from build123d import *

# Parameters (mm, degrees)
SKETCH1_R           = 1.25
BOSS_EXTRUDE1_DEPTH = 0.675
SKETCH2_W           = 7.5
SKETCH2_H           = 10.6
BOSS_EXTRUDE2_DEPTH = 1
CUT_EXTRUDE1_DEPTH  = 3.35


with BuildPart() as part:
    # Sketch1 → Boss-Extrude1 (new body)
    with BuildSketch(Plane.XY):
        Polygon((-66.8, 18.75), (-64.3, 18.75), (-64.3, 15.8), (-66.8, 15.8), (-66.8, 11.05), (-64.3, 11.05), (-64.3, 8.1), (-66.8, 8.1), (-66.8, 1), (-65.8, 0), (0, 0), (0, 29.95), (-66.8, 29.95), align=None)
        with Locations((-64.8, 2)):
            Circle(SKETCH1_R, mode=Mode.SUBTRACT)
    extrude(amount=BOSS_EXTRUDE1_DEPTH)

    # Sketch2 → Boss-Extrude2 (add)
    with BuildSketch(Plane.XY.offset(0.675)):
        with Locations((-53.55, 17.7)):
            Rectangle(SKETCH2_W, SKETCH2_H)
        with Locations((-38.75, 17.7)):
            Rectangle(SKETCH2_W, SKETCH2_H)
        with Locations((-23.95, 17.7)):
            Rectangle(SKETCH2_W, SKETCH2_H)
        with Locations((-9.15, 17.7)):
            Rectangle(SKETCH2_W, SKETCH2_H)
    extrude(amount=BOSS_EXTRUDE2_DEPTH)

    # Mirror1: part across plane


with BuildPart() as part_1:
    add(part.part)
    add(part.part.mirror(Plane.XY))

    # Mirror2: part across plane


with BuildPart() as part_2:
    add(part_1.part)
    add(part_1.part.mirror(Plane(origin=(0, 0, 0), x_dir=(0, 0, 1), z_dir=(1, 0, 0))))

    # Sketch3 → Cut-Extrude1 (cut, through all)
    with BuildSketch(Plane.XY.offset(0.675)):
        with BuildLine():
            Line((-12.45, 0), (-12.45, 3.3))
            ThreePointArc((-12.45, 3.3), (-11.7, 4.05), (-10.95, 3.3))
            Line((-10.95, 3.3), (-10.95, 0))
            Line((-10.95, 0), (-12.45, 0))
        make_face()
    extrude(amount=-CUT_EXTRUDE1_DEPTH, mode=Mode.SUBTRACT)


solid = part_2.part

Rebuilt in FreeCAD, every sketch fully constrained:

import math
import FreeCAD as App
import Part
import Sketcher
from FreeCAD import Vector
Q = App.Units.Quantity


def add_polygon(sketch, points):
    """Adds a closed chain of lines whose ends are joined by coincident constraints."""
    first, n = sketch.GeometryCount, len(points)
    for a, b in zip(points, points[1:] + points[:1]):
        sketch.addGeometry(Part.LineSegment(App.Vector(*a, 0), App.Vector(*b, 0)), False)
    for i in range(n):
        sketch.addConstraint(Sketcher.Constraint("Coincident", first + i, 2, first + (i + 1) % n, 1))

doc = App.newDocument("Part")
params = doc.addObject("Spreadsheet::Sheet", "Params")
for row, (alias, value) in enumerate([
    ("sketch1_diameter", "2.5 mm"),
    ("sketch1_width", "2.5 mm"),
    ("sketch1_width2", "65.8 mm"),
    ("sketch1_width3", "66.8 mm"),
    ("sketch1_height", "7.1 mm"),
    ("pad1_length", "0.675 mm"),
    ("sketch2_width", "7.5 mm"),
    ("sketch2_height", "10.6 mm"),
    ("pad2_length", "1 mm"),
    ("sketch3_radius", "0.75 mm"),
    ("sketch3_height", "3.3 mm"),
], start=1):
    params.set(f"A{row}", alias)
    params.set(f"B{row}", "=" + value)
    params.setAlias(f"B{row}", alias)

body = doc.addObject("PartDesign::Body", "Body")

# Sketch on XY plane
sketch1 = body.newObject("Sketcher::SketchObject", "Sketch")
sketch1.AttachmentSupport = (doc.getObject("XY_Plane"), [""])
sketch1.MapMode = "FlatFace"
add_polygon(sketch1, [(-66.8, 18.75), (-64.3, 18.75), (-64.3, 15.8), (-66.8, 15.8), (-66.8, 11.05), (-64.3, 11.05), (-64.3, 8.1), (-66.8, 8.1), (-66.8, 1), (-65.8, 0), (0, 0), (0, 29.95), (-66.8, 29.95)])  # lines 0-12
sketch1.addGeometry(Part.Circle(Vector(-64.8, 2, 0), Vector(0, 0, 1), 1.25), False)  # 13
sketch1.addConstraint(Sketcher.Constraint("Horizontal", 0))
sketch1.addConstraint(Sketcher.Constraint("Vertical", 1))
sketch1.addConstraint(Sketcher.Constraint("Horizontal", 2))
sketch1.addConstraint(Sketcher.Constraint("Vertical", 3))
sketch1.addConstraint(Sketcher.Constraint("Horizontal", 4))
sketch1.addConstraint(Sketcher.Constraint("Vertical", 5))
sketch1.addConstraint(Sketcher.Constraint("Horizontal", 6))
sketch1.addConstraint(Sketcher.Constraint("Vertical", 7))
sketch1.addConstraint(Sketcher.Constraint("Horizontal", 9))
sketch1.addConstraint(Sketcher.Constraint("Vertical", 10))
sketch1.addConstraint(Sketcher.Constraint("Horizontal", 11))
sketch1.addConstraint(Sketcher.Constraint("Vertical", 12))
sketch1.addConstraint(Sketcher.Constraint("Coincident", 9, 2, -1, 1))
sketch1.addConstraint(Sketcher.Constraint("Vertical", 1, 2, 4, 2))
sketch1.addConstraint(Sketcher.Constraint("Vertical", 3, 2, 6, 2))
sketch1.addConstraint(Sketcher.Constraint("Vertical", 7, 2, 11, 2))
sketch1.addConstraint(Sketcher.Constraint("Equal", 1, 5))
sketch1.addConstraint(Sketcher.Constraint("Diameter", 13, Q("2.5 mm")))
sketch1.addConstraint(Sketcher.Constraint("Angle", 8, Q("-45 deg")))
sketch1.addConstraint(Sketcher.Constraint("DistanceX", 0, 1, 0, 2, Q("2.5 mm")))
sketch1.addConstraint(Sketcher.Constraint("DistanceX", 9, 1, 9, 2, Q("65.8 mm")))
sketch1.addConstraint(Sketcher.Constraint("DistanceX", 11, 2, 11, 1, Q("66.8 mm")))
sketch1.addConstraint(Sketcher.Constraint("DistanceY", 7, 2, 7, 1, Q("7.1 mm")))
sketch1.addConstraint(Sketcher.Constraint("DistanceY", 12, 2, 12, 1, Q("11.2 mm")))
sketch1.addConstraint(Sketcher.Constraint("DistanceY", -1, 1, 13, 3, Q("2 mm")))
sketch1.addConstraint(Sketcher.Constraint("DistanceX", 2, 2, 13, 3, Q("2 mm")))
sketch1.addConstraint(Sketcher.Constraint("DistanceY", 1, 2, 1, 1, Q("2.95 mm")))
sketch1.addConstraint(Sketcher.Constraint("DistanceY", 3, 2, 3, 1, Q("4.75 mm")))
sketch1.setExpression("Constraints[30]", "Params.sketch1_diameter")
sketch1.setExpression("Constraints[32]", "Params.sketch1_width")
sketch1.setExpression("Constraints[33]", "Params.sketch1_width2")
sketch1.setExpression("Constraints[34]", "Params.sketch1_width3")
sketch1.setExpression("Constraints[35]", "Params.sketch1_height")
pad1 = body.newObject("PartDesign::Pad", "Pad")
pad1.Profile = sketch1
pad1.setExpression("Length", "Params.pad1_length")

# Sketch on XY plane
sketch2 = body.newObject("Sketcher::SketchObject", "Sketch001")
sketch2.AttachmentSupport = (doc.getObject("XY_Plane"), [""])
sketch2.MapMode = "FlatFace"
sketch2.AttachmentOffset = App.Placement(Vector(0, 0, 0.675), App.Rotation())
add_polygon(sketch2, [(-57.3, 23), (-57.3, 12.4), (-49.8, 12.4), (-49.8, 23)])  # lines 0-3
add_polygon(sketch2, [(-42.5, 23), (-42.5, 12.4), (-35, 12.4), (-35, 23)])  # lines 4-7
add_polygon(sketch2, [(-27.7, 23), (-27.7, 12.4), (-20.2, 12.4), (-20.2, 23)])  # lines 8-11
add_polygon(sketch2, [(-12.9, 23), (-12.9, 12.4), (-5.4, 12.4), (-5.4, 23)])  # lines 12-15
sketch2.addConstraint(Sketcher.Constraint("Vertical", 0))
sketch2.addConstraint(Sketcher.Constraint("Horizontal", 1))
sketch2.addConstraint(Sketcher.Constraint("Vertical", 2))
sketch2.addConstraint(Sketcher.Constraint("Horizontal", 3))
sketch2.addConstraint(Sketcher.Constraint("Vertical", 4))
sketch2.addConstraint(Sketcher.Constraint("Horizontal", 5))
sketch2.addConstraint(Sketcher.Constraint("Vertical", 6))
sketch2.addConstraint(Sketcher.Constraint("Horizontal", 7))
sketch2.addConstraint(Sketcher.Constraint("Vertical", 8))
sketch2.addConstraint(Sketcher.Constraint("Horizontal", 9))
sketch2.addConstraint(Sketcher.Constraint("Vertical", 10))
sketch2.addConstraint(Sketcher.Constraint("Horizontal", 11))
sketch2.addConstraint(Sketcher.Constraint("Vertical", 12))
sketch2.addConstraint(Sketcher.Constraint("Horizontal", 13))
sketch2.addConstraint(Sketcher.Constraint("Vertical", 14))
sketch2.addConstraint(Sketcher.Constraint("Horizontal", 15))
sketch2.addConstraint(Sketcher.Constraint("Horizontal", 1, 2, 4, 2))
sketch2.addConstraint(Sketcher.Constraint("Horizontal", 3, 2, 6, 2))
sketch2.addConstraint(Sketcher.Constraint("Horizontal", 5, 2, 8, 2))
sketch2.addConstraint(Sketcher.Constraint("Horizontal", 7, 2, 10, 2))
sketch2.addConstraint(Sketcher.Constraint("Horizontal", 9, 2, 12, 2))
sketch2.addConstraint(Sketcher.Constraint("Horizontal", 11, 2, 14, 2))
sketch2.addConstraint(Sketcher.Constraint("Equal", 3, 5))
sketch2.addConstraint(Sketcher.Constraint("Equal", 7, 9))
sketch2.addConstraint(Sketcher.Constraint("Equal", 11, 13))
sketch2.addConstraint(Sketcher.Constraint("DistanceX", 1, 1, 1, 2, Q("7.5 mm")))
sketch2.addConstraint(Sketcher.Constraint("DistanceY", 0, 2, 0, 1, Q("10.6 mm")))
sketch2.addConstraint(Sketcher.Constraint("DistanceY", -1, 1, 2, 2, Q("23 mm")))
sketch2.addConstraint(Sketcher.Constraint("DistanceX", 5, 2, -1, 1, Q("35 mm")))
sketch2.addConstraint(Sketcher.Constraint("DistanceX", 0, 2, -1, 1, Q("57.3 mm")))
sketch2.addConstraint(Sketcher.Constraint("DistanceX", 8, 2, -1, 1, Q("27.7 mm")))
sketch2.addConstraint(Sketcher.Constraint("DistanceX", 12, 2, -1, 1, Q("12.9 mm")))
sketch2.setExpression("Constraints[41]", "Params.sketch2_width")
sketch2.setExpression("Constraints[42]", "Params.sketch2_height")
pad2 = body.newObject("PartDesign::Pad", "Pad001")
pad2.Profile = sketch2
pad2.setExpression("Length", "Params.pad2_length")
body2 = doc.addObject("PartDesign::Body", "Body001")
doc.recompute()

body2.BaseFeature = body
doc.recompute()

mirroring = doc.addObject("Part::Mirroring", "Mirroring")
mirroring.Source = body
mirroring.Base = Vector(0, 0, 0)
mirroring.Normal = Vector(0, 0, 1)
body3 = doc.addObject("PartDesign::Body", "Body002")
body3.BaseFeature = mirroring
boolean = body2.newObject("PartDesign::Boolean", "Boolean")
boolean.Type = "Fuse"
boolean.addObjects([body3])
doc.recompute()
body4 = doc.addObject("PartDesign::Body", "Body003")
doc.recompute()

body4.BaseFeature = body2
doc.recompute()

mirroring2 = doc.addObject("Part::Mirroring", "Mirroring001")
mirroring2.Source = body2
mirroring2.Base = Vector(0, 0, 0)
mirroring2.Normal = Vector(1, 0, 0)
body5 = doc.addObject("PartDesign::Body", "Body004")
body5.BaseFeature = mirroring2
boolean2 = body4.newObject("PartDesign::Boolean", "Boolean001")
boolean2.Type = "Fuse"
boolean2.addObjects([body5])
doc.recompute()

# Sketch on XY plane
sketch3 = body4.newObject("Sketcher::SketchObject", "Sketch002")
sketch3.AttachmentSupport = (doc.getObject("XY_Plane003"), [""])
sketch3.MapMode = "FlatFace"
sketch3.AttachmentOffset = App.Placement(Vector(0, 0, 0.675), App.Rotation())
sketch3.addGeometry(Part.LineSegment(Vector(-12.45, 3.3, 0), Vector(-12.45, 0, 0)), False)
sketch3.addGeometry(Part.LineSegment(Vector(-12.45, 0, 0), Vector(-10.95, 0, 0)), False)
sketch3.addGeometry(Part.LineSegment(Vector(-10.95, 0, 0), Vector(-10.95, 3.3, 0)), False)
sketch3.addGeometry(Part.ArcOfCircle(Part.Circle(Vector(-11.7, 3.3, 0), Vector(0, 0, 1), 0.75), math.radians(0), math.radians(180)), False)
sketch3.addConstraint(Sketcher.Constraint("Coincident", 0, 2, 1, 1))
sketch3.addConstraint(Sketcher.Constraint("Coincident", 1, 2, 2, 1))
sketch3.addConstraint(Sketcher.Constraint("Tangent", 2, 2, 3, 1))
sketch3.addConstraint(Sketcher.Constraint("Tangent", 3, 2, 0, 1))
sketch3.addConstraint(Sketcher.Constraint("Vertical", 0))
sketch3.addConstraint(Sketcher.Constraint("Horizontal", 1))
sketch3.addConstraint(Sketcher.Constraint("Vertical", 2))
sketch3.addConstraint(Sketcher.Constraint("PointOnObject", 0, 2, -1))
sketch3.addConstraint(Sketcher.Constraint("Radius", 3, Q("0.75 mm")))
sketch3.addConstraint(Sketcher.Constraint("DistanceY", 0, 2, 0, 1, Q("3.3 mm")))
sketch3.addConstraint(Sketcher.Constraint("DistanceX", 3, 3, -1, 1, Q("11.7 mm")))
sketch3.setExpression("Constraints[8]", "Params.sketch3_radius")
sketch3.setExpression("Constraints[9]", "Params.sketch3_height")
pocket1 = body4.newObject("PartDesign::Pocket", "Pocket")
pocket1.Profile = sketch3
pocket1.Type = "ThroughAll"
mirroring.Visibility = False
mirroring2.Visibility = False

doc.recompute()
